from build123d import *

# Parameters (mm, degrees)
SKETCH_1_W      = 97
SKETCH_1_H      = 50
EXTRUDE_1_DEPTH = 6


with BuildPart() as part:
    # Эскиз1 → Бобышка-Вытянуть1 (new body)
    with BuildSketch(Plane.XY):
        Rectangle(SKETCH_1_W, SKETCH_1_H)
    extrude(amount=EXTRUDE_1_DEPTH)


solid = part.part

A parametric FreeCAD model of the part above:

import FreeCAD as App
import Part
import Sketcher
from FreeCAD import Vector
Q = App.Units.Quantity

doc = App.newDocument("Part")
params = doc.addObject("Spreadsheet::Sheet", "Params")
for row, (alias, value) in enumerate([
    ("sketch1_width", "97 mm"),
    ("sketch1_height", "50 mm"),
    ("pad1_length", "6 mm"),
], start=1):
    params.set(f"A{row}", alias)
    params.set(f"B{row}", "=" + value)
    params.setAlias(f"B{row}", alias)

body = doc.addObject("PartDesign::Body", "Body")

sketch1 = body.newObject("Sketcher::SketchObject", "Sketch")
sketch1.AttachmentSupport = (doc.getObject("XY_Plane"), [""])
sketch1.MapMode = "FlatFace"
sketch1.addGeometry(Part.LineSegment(Vector(-48.5, 25, 0), Vector(-48.5, -25, 0)), False)
sketch1.addGeometry(Part.LineSegment(Vector(-48.5, -25, 0), Vector(48.5, -25, 0)), False)
sketch1.addGeometry(Part.LineSegment(Vector(48.5, -25, 0), Vector(48.5, 25, 0)), False)
sketch1.addGeometry(Part.LineSegment(Vector(48.5, 25, 0), Vector(-48.5, 25, 0)), False)
sketch1.addConstraint(Sketcher.Constraint("Coincident", 0, 2, 1, 1))
sketch1.addConstraint(Sketcher.Constraint("Coincident", 1, 2, 2, 1))
sketch1.addConstraint(Sketcher.Constraint("Coincident", 2, 2, 3, 1))
sketch1.addConstraint(Sketcher.Constraint("Coincident", 3, 2, 0, 1))
sketch1.addConstraint(Sketcher.Constraint("Vertical", 0))
sketch1.addConstraint(Sketcher.Constraint("Horizontal", 1))
sketch1.addConstraint(Sketcher.Constraint("Vertical", 2))
sketch1.addConstraint(Sketcher.Constraint("Horizontal", 3))
sketch1.addConstraint(Sketcher.Constraint("Symmetric", 0, 2, 2, 2, -1, 1))
sketch1.addConstraint(Sketcher.Constraint("DistanceX", 1, 1, 1, 2, Q("97 mm")))
sketch1.addConstraint(Sketcher.Constraint("DistanceY", 0, 2, 0, 1, Q("50 mm")))
sketch1.setExpression("Constraints[9]", "Params.sketch1_width")
sketch1.setExpression("Constraints[10]", "Params.sketch1_height")
pad1 = body.newObject("PartDesign::Pad", "Pad")
pad1.Profile = sketch1
pad1.setExpression("Length", "Params.pad1_length")

doc.recompute()
